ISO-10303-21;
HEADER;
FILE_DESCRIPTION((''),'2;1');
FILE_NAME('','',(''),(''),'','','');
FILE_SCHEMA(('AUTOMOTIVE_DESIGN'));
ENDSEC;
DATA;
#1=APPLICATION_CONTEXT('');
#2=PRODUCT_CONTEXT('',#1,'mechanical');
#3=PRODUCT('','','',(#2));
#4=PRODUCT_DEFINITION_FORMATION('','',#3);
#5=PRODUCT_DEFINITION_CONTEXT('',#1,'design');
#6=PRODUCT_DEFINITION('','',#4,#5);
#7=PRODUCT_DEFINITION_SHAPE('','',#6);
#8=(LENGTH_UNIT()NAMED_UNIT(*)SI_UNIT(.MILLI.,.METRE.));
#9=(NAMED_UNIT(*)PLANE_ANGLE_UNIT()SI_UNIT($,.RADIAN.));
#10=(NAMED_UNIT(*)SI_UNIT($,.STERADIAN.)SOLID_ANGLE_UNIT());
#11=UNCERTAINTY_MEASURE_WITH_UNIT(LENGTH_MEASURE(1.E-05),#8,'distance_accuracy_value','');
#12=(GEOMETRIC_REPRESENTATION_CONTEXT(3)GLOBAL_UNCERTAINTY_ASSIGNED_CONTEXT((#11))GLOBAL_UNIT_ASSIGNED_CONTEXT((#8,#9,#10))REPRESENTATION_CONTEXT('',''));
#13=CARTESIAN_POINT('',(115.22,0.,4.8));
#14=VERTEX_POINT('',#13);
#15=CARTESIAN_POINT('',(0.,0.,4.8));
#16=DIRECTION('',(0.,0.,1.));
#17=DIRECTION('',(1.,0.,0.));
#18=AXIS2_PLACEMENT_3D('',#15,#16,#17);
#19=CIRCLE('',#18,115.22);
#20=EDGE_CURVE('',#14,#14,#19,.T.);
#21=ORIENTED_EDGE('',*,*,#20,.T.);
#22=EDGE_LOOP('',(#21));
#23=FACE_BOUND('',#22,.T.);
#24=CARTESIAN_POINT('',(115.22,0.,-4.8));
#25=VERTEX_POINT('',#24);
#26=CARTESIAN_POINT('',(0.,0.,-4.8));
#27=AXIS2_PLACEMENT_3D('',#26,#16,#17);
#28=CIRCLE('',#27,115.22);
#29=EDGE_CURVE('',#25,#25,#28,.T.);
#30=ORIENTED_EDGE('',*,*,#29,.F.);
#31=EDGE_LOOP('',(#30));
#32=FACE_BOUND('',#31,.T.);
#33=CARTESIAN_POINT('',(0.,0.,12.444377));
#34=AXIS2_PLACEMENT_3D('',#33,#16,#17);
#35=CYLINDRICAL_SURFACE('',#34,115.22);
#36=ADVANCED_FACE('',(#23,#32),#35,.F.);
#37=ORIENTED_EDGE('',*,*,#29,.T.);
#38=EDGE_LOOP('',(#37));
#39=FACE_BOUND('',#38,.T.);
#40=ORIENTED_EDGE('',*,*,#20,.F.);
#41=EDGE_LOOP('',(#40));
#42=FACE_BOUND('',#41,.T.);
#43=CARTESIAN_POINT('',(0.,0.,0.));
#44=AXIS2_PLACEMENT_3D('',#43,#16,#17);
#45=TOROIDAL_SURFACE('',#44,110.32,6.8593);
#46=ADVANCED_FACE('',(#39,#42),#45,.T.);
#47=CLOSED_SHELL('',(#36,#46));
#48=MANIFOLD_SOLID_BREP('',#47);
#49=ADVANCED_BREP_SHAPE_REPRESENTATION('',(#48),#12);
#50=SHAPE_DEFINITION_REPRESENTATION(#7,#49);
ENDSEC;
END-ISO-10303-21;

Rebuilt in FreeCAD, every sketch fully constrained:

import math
import FreeCAD as App
import Part
import Sketcher

V = App.Vector
Q = App.Units.Quantity

doc = App.newDocument("Part")
body = doc.addObject("PartDesign::Body", "Body")

# Sketch on YZ plane
sketch1 = body.newObject("Sketcher::SketchObject", "Sketch")
sketch1.AttachmentSupport = (doc.getObject("YZ_Plane"), [""])
sketch1.MapMode = "FlatFace"
sketch1.addGeometry(Part.ArcOfCircle(Part.Circle(V(110, 0, 0), V(0, 0, 1), 7), math.radians(-44), math.radians(44)), False)
sketch1.addGeometry(Part.LineSegment(V(115, 5, 0), V(115, -5, 0)), False)
sketch1.addConstraint(Sketcher.Constraint("Coincident", 0, 1, 1, 2))
sketch1.addConstraint(Sketcher.Constraint("Coincident", 1, 1, 0, 2))
sketch1.addConstraint(Sketcher.Constraint("Vertical", 1))
sketch1.addConstraint(Sketcher.Constraint("PointOnObject", 0, 3, -1))
sketch1.addConstraint(Sketcher.Constraint("DistanceY", 1, 2, 1, 1, Q("9.6 mm")))
sketch1.addConstraint(Sketcher.Constraint("Radius", 0, Q("6.8593 mm")))
sketch1.addConstraint(Sketcher.Constraint("DistanceX", -1, 1, 0, 3, Q("110.32 mm")))
revolution = body.newObject("PartDesign::Revolution", "Revolution")
revolution.Profile = sketch1
revolution.ReferenceAxis = (sketch1, ["V_Axis"])
revolution.Angle = 360

doc.recompute()
